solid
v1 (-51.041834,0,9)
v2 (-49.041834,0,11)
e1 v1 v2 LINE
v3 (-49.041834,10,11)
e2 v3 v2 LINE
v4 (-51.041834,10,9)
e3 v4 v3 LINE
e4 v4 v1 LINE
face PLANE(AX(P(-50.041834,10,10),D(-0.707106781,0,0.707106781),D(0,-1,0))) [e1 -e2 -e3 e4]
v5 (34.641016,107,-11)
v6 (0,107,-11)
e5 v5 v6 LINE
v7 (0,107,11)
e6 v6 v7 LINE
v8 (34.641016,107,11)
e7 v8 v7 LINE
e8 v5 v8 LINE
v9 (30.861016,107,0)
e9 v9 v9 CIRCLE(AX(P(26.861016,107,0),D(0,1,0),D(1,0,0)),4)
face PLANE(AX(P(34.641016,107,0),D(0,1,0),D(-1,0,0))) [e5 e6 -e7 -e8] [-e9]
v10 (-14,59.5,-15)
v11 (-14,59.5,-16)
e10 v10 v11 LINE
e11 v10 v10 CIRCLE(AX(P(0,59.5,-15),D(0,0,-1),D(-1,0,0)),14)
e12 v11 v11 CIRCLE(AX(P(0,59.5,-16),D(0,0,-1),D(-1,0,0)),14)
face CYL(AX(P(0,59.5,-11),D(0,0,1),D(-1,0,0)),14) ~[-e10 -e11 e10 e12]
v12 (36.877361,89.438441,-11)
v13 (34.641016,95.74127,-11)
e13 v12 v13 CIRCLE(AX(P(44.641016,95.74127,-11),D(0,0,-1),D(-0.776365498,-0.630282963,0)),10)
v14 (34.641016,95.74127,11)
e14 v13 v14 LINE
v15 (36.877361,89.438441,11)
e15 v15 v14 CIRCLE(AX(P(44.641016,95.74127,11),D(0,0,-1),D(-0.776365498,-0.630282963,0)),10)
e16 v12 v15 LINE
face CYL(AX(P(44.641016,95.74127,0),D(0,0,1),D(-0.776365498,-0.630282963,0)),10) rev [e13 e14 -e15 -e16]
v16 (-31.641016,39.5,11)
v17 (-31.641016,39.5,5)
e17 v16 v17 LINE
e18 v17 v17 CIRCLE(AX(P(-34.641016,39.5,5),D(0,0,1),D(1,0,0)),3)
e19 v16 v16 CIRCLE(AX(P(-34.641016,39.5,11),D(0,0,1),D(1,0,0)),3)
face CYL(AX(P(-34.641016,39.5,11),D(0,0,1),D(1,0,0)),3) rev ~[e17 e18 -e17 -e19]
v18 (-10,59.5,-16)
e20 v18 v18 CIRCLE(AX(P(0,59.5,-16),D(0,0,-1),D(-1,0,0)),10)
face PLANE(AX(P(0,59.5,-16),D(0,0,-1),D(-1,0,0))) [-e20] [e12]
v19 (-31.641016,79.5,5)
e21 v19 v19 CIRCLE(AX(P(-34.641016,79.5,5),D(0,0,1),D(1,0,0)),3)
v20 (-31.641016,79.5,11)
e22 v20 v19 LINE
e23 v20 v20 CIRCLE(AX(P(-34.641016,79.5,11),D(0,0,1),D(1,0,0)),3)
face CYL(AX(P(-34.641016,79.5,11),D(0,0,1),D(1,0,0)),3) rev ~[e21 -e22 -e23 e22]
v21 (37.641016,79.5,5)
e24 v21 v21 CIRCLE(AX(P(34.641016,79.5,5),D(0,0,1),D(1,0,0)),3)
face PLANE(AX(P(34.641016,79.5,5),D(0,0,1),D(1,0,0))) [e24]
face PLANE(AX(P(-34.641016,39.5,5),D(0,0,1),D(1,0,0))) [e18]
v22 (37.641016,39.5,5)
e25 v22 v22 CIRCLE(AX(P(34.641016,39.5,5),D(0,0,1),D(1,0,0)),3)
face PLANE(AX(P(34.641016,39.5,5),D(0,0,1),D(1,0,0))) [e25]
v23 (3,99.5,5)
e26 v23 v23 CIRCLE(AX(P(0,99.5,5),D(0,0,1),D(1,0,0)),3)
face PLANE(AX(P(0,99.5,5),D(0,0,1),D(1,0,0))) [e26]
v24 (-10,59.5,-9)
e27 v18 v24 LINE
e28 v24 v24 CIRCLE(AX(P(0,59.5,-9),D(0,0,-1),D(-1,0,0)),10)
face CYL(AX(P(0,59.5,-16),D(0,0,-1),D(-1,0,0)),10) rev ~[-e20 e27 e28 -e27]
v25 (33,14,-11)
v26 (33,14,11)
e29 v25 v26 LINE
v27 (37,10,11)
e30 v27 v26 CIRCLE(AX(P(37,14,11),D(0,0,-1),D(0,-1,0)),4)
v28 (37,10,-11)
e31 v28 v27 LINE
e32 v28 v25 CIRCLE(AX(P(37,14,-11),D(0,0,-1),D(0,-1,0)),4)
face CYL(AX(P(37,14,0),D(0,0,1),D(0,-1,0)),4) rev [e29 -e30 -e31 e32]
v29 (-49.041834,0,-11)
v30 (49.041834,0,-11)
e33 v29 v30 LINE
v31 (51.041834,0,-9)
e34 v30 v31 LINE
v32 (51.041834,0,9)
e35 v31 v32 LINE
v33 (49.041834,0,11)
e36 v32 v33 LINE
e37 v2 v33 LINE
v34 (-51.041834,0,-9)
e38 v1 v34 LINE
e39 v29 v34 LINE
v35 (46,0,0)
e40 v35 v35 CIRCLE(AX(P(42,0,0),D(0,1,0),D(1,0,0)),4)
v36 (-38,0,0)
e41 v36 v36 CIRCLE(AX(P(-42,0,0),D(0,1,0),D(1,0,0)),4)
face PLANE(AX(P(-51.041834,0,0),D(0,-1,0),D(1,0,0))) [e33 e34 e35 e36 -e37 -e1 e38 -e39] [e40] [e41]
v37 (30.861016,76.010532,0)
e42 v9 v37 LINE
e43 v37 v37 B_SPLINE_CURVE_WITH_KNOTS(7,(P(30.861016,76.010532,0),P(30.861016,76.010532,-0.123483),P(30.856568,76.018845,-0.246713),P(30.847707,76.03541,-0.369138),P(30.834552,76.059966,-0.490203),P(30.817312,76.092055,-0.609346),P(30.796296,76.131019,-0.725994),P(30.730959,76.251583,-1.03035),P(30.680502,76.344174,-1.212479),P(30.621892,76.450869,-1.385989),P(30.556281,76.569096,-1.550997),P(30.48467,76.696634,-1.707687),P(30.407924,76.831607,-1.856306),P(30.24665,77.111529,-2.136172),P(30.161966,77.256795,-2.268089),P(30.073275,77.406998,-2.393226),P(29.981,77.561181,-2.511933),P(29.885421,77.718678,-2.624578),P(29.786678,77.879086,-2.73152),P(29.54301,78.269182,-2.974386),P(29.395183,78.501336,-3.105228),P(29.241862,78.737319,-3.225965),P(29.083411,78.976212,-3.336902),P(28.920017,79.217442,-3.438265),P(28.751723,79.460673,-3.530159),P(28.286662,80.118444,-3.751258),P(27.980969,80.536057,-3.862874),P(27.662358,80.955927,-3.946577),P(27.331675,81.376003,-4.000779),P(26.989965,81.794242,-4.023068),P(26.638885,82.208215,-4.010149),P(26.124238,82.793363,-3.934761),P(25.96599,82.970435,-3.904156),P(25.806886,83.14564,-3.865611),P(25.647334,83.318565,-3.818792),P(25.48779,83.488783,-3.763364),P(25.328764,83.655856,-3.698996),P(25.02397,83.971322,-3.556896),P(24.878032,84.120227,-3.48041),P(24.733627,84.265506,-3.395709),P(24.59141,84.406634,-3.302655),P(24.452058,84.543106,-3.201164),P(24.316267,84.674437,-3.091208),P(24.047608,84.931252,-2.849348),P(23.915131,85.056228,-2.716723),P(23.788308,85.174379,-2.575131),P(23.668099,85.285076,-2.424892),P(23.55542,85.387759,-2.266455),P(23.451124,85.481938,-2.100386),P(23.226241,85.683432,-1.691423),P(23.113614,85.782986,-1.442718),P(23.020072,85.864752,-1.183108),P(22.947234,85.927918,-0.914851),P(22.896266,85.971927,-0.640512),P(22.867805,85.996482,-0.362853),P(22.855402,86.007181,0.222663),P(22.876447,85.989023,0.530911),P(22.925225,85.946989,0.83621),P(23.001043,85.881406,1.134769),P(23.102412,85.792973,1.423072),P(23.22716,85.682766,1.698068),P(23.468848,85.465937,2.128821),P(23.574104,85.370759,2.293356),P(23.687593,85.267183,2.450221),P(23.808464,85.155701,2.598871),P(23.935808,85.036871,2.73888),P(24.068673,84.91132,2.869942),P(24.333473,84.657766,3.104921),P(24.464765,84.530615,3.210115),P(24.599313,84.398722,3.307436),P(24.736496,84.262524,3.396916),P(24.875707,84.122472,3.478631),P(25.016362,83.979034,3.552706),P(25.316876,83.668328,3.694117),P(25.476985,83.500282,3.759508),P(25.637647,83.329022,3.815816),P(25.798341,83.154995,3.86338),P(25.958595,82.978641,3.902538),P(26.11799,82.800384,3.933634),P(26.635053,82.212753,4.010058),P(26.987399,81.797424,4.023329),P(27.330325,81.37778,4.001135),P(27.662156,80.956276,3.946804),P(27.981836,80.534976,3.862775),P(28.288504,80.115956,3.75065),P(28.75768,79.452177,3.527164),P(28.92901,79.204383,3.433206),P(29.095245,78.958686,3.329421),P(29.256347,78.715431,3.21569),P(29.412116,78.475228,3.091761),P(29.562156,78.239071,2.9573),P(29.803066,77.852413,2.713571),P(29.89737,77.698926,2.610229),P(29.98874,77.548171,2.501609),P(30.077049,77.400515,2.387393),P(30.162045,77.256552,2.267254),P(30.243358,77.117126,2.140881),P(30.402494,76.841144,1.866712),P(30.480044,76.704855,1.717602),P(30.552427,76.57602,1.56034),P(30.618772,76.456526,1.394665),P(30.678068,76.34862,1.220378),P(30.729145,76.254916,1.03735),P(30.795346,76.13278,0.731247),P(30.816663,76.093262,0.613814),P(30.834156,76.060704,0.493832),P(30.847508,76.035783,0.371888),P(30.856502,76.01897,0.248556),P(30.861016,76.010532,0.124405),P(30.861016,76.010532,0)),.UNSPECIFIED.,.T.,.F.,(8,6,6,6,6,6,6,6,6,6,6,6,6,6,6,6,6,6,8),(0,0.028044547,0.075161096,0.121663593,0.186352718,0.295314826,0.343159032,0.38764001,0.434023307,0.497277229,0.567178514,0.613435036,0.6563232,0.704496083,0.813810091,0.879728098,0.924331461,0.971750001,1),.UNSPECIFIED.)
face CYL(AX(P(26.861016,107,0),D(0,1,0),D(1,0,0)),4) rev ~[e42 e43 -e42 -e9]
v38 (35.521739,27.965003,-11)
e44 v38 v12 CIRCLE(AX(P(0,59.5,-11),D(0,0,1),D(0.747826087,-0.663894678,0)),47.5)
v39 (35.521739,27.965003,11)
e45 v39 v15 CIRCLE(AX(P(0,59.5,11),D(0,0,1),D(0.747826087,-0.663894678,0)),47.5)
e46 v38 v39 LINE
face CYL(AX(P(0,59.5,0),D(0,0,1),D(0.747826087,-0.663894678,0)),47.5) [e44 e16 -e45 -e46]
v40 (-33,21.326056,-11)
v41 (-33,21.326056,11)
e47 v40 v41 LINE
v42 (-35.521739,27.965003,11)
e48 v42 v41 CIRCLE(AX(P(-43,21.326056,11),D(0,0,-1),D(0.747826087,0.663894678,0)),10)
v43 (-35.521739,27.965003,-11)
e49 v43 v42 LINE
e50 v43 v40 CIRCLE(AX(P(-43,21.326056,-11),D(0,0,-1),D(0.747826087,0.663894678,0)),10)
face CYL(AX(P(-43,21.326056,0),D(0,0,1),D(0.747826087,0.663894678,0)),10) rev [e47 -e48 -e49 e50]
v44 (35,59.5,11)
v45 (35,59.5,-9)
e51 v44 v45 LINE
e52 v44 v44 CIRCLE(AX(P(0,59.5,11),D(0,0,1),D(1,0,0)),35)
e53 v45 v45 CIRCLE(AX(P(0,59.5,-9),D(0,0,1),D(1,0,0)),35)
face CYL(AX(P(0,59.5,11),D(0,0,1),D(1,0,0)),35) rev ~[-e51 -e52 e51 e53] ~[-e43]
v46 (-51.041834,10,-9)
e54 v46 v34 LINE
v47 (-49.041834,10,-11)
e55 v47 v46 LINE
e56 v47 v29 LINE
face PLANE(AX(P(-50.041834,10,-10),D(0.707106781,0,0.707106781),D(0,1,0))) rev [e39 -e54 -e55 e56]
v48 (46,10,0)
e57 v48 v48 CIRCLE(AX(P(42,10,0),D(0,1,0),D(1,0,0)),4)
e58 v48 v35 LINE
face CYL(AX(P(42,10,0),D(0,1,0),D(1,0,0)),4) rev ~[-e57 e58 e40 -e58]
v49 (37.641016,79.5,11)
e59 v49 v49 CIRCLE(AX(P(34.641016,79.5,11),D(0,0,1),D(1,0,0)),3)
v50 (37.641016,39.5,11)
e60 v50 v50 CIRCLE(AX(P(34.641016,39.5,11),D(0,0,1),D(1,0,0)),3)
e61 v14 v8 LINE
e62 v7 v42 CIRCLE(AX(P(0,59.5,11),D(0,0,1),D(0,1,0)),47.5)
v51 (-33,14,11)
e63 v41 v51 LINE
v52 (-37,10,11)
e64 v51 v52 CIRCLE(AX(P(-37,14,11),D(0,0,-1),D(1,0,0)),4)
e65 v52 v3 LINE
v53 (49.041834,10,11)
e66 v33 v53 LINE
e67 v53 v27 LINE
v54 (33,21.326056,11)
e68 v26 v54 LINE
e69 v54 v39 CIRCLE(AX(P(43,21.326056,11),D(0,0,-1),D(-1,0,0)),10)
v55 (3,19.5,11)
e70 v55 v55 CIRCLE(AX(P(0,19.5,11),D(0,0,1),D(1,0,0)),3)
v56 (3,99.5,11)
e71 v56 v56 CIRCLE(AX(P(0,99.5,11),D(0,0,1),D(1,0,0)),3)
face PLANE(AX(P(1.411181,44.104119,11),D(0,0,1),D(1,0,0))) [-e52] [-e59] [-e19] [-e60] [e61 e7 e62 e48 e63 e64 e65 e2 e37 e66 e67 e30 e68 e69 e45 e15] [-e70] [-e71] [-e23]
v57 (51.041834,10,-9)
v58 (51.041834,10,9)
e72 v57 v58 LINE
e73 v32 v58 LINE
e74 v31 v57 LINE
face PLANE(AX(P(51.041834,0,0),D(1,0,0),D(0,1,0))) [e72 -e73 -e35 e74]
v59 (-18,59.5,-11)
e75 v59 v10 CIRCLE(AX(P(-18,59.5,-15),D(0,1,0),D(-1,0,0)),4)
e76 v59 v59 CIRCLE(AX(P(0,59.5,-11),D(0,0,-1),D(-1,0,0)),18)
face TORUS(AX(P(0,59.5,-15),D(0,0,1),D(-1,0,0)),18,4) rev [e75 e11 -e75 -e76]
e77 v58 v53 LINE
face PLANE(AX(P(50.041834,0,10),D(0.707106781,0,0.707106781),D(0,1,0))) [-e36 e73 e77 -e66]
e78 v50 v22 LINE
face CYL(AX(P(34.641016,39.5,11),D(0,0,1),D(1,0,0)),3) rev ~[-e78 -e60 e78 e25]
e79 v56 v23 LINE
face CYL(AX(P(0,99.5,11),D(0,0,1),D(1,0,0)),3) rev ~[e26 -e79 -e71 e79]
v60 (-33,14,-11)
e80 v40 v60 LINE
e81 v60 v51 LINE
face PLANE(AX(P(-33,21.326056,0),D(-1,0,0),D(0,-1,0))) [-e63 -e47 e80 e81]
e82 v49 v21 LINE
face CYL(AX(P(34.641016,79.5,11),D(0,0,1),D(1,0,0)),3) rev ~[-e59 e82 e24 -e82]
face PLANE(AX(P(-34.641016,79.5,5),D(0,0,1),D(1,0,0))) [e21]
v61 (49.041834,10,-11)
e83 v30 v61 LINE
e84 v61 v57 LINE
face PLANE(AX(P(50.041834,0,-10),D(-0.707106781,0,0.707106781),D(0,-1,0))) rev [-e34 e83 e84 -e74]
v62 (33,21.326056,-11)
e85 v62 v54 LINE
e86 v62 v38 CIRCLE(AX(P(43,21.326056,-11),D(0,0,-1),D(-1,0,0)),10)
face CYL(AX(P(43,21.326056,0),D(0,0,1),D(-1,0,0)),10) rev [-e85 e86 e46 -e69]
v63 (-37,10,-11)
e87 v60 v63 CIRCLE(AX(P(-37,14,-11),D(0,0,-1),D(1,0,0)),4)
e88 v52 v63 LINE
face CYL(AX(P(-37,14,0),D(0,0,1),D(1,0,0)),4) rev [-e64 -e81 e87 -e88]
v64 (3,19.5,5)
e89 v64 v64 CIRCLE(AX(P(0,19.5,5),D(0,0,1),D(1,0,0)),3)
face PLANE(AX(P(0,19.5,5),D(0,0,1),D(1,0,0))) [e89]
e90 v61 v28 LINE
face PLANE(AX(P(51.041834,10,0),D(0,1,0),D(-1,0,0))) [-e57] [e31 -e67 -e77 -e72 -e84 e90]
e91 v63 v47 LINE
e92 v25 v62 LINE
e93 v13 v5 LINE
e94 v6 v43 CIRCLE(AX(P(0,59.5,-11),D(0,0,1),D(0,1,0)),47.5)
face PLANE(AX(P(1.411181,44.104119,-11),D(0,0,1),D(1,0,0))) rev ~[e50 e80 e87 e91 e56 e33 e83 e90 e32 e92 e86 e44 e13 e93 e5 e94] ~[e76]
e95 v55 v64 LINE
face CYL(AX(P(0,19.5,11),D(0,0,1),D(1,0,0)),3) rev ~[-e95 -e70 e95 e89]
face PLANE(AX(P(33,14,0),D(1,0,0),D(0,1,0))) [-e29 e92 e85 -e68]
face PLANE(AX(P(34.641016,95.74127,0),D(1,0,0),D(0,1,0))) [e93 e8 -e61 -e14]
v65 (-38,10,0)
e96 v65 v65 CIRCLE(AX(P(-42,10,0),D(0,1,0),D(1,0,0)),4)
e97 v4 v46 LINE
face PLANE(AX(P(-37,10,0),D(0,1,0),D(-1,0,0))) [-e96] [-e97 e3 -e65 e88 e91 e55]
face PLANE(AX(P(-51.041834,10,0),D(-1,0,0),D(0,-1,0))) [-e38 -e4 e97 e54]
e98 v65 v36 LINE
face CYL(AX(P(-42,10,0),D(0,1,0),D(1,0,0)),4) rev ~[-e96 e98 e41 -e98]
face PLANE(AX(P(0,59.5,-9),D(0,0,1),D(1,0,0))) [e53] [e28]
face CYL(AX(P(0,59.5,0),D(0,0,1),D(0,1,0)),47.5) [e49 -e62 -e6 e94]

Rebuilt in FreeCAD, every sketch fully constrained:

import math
import FreeCAD as App
import Part
import Sketcher
from FreeCAD import Vector
Q = App.Units.Quantity


def edges_at(feature, points):
    """Names of the edges that pass closest to the given points."""
    edges = feature.Shape.Edges
    near = lambda p: min(range(len(edges)), key=lambda i: edges[i].distToShape(Part.Vertex(*p))[0])
    return sorted({f"Edge{near(p) + 1}" for p in points})

doc = App.newDocument("Part")
body = doc.addObject("PartDesign::Body", "Body")

# Sketch on XY plane
sketch1 = body.newObject("Sketcher::SketchObject", "Sketch")
sketch1.AttachmentSupport = (doc.getObject("XY_Plane"), [""])
sketch1.MapMode = "FlatFace"
sketch1.addGeometry([
    Part.LineSegment(Vector(-51, 0, 0), Vector(51, 0, 0)),  # 0
    Part.LineSegment(Vector(51, 0, 0), Vector(51, 10, 0)),  # 1
    Part.LineSegment(Vector(51, 10, 0), Vector(37, 10, 0)),  # 2
    Part.ArcOfCircle(Part.Circle(Vector(37, 14, 0), Vector(0, 0, 1), 4), math.radians(180), math.radians(270)),  # 3
    Part.LineSegment(Vector(33, 14, 0), Vector(33, 21.3, 0)),  # 4
    Part.ArcOfCircle(Part.Circle(Vector(43, 21.3, 0), Vector(0, 0, 1), 10), math.radians(138), math.radians(180)),  # 5
    Part.ArcOfCircle(Part.Circle(Vector(0, 59.5, 0), Vector(0, 0, 1), 47.5), math.radians(-42), math.radians(39)),  # 6
    Part.ArcOfCircle(Part.Circle(Vector(44.6, 95.7, 0), Vector(0, 0, 1), 10), math.radians(180), math.radians(219)),  # 7
    Part.LineSegment(Vector(34.6, 95.7, 0), Vector(34.6, 107, 0)),  # 8
    Part.LineSegment(Vector(34.6, 107, 0), Vector(0, 107, 0)),  # 9
    Part.ArcOfCircle(Part.Circle(Vector(0, 59.5, 0), Vector(0, 0, 1), 47.5), math.radians(90), math.radians(222)),  # 10
    Part.ArcOfCircle(Part.Circle(Vector(-43, 21.3, 0), Vector(0, 0, 1), 10), math.radians(0), math.radians(42)),  # 11
    Part.LineSegment(Vector(-33, 21.3, 0), Vector(-33, 14, 0)),  # 12
    Part.ArcOfCircle(Part.Circle(Vector(-37, 14, 0), Vector(0, 0, 1), 4), math.radians(-90), math.radians(0)),  # 13
    Part.LineSegment(Vector(-37, 10, 0), Vector(-51, 10, 0)),  # 14
    Part.LineSegment(Vector(-51, 10, 0), Vector(-51, 0, 0)),  # 15
], False)
sketch1.addConstraint([
    Sketcher.Constraint("Coincident", 0, 2, 1, 1),
    Sketcher.Constraint("Coincident", 1, 2, 2, 1),
    Sketcher.Constraint("Tangent", 2, 2, 3, 2),
    Sketcher.Constraint("Tangent", 3, 1, 4, 1),
    Sketcher.Constraint("Tangent", 4, 2, 5, 2),
    Sketcher.Constraint("Tangent", 5, 1, 6, 1),
    Sketcher.Constraint("Tangent", 6, 2, 7, 2),
    Sketcher.Constraint("Tangent", 7, 1, 8, 1),
    Sketcher.Constraint("Coincident", 8, 2, 9, 1),
    Sketcher.Constraint("Tangent", 9, 2, 10, 1),
    Sketcher.Constraint("Tangent", 10, 2, 11, 2),
    Sketcher.Constraint("Tangent", 11, 1, 12, 1),
    Sketcher.Constraint("Tangent", 12, 2, 13, 2),
    Sketcher.Constraint("Tangent", 13, 1, 14, 1),
    Sketcher.Constraint("Coincident", 14, 2, 15, 1),
    Sketcher.Constraint("Coincident", 15, 2, 0, 1),
    Sketcher.Constraint("Horizontal", 0),
    Sketcher.Constraint("Vertical", 1),
    Sketcher.Constraint("Horizontal", 2),
    Sketcher.Constraint("Vertical", 4),
    Sketcher.Constraint("Vertical", 8),
    Sketcher.Constraint("Horizontal", 9),
    Sketcher.Constraint("Vertical", 12),
    Sketcher.Constraint("Horizontal", 14),
    Sketcher.Constraint("Vertical", 15),
    Sketcher.Constraint("Coincident", 10, 3, 6, 3),
    Sketcher.Constraint("Equal", 5, 7),
    Sketcher.Constraint("Equal", 6, 10),
    Sketcher.Constraint("Equal", 7, 11),
    Sketcher.Constraint("Equal", 3, 13),
    Sketcher.Constraint("Symmetric", 0, 2, 15, 2, -1, 1),
    Sketcher.Constraint("Symmetric", 5, 3, 11, 3, -2),
    Sketcher.Constraint("Horizontal", 3, 3, 13, 3),
    Sketcher.Constraint("Radius", 3, Q("4 mm")),
    Sketcher.Constraint("Radius", 5, Q("10 mm")),
    Sketcher.Constraint("Radius", 6, Q("47.5 mm")),
    Sketcher.Constraint("DistanceY", 1, 1, 1, 2, Q("10 mm")),
    Sketcher.Constraint("DistanceX", -1, 1, 3, 3, Q("37 mm")),
    Sketcher.Constraint("DistanceY", -1, 1, 8, 2, Q("107 mm")),
    Sketcher.Constraint("DistanceX", 0, 1, 0, 2, Q("102.083668 mm")),
    Sketcher.Constraint("DistanceY", 8, 1, 8, 2, Q("11.25873 mm")),
])
pad1 = body.newObject("PartDesign::Pad", "Pad")
pad1.Profile = sketch1
pad1.Length = 22
pad1.Midplane = True

# Sketch on XY plane
sketch2 = body.newObject("Sketcher::SketchObject", "Sketch001")
sketch2.AttachmentSupport = (doc.getObject("XY_Plane"), [""])
sketch2.MapMode = "FlatFace"
sketch2.AttachmentOffset = App.Placement(Vector(0, 0, 11), App.Rotation())
sketch2.addGeometry(Part.Circle(Vector(0, 60, 0), Vector(0, 0, 1), 35), False)
sketch2.addConstraint([
    Sketcher.Constraint("PointOnObject", 0, 3, -2),
    Sketcher.Constraint("Diameter", 0, Q("70 mm")),
    Sketcher.Constraint("DistanceY", -1, 1, 0, 3, Q("59.5 mm")),
])
pocket1 = body.newObject("PartDesign::Pocket", "Pocket")
pocket1.Profile = sketch2
pocket1.Length = 20

# Sketch on XY plane
sketch3 = body.newObject("Sketcher::SketchObject", "Sketch002")
sketch3.AttachmentSupport = (doc.getObject("XY_Plane"), [""])
sketch3.MapMode = "FlatFace"
sketch3.AttachmentOffset = App.Placement(Vector(0, 0, -11), App.Rotation())
sketch3.addGeometry(Part.Circle(Vector(0, 60, 0), Vector(0, 0, 1), 14), False)
sketch3.addConstraint([
    Sketcher.Constraint("PointOnObject", 0, 3, -2),
    Sketcher.Constraint("Diameter", 0, Q("28 mm")),
    Sketcher.Constraint("DistanceY", -1, 1, 0, 3, Q("59.5 mm")),
])
pad2 = body.newObject("PartDesign::Pad", "Pad001")
pad2.Profile = sketch3
pad2.Length = 5
pad2.Reversed = True

# Sketch on XY plane
sketch4 = body.newObject("Sketcher::SketchObject", "Sketch003")
sketch4.AttachmentSupport = (doc.getObject("XY_Plane"), [""])
sketch4.MapMode = "FlatFace"
sketch4.AttachmentOffset = App.Placement(Vector(0, 0, -16), App.Rotation())
sketch4.addGeometry(Part.Circle(Vector(0, 60, 0), Vector(0, 0, 1), 10), False)
sketch4.addConstraint([
    Sketcher.Constraint("PointOnObject", 0, 3, -2),
    Sketcher.Constraint("Diameter", 0, Q("20 mm")),
    Sketcher.Constraint("DistanceY", -1, 1, 0, 3, Q("59.5 mm")),
])
pocket2 = body.newObject("PartDesign::Pocket", "Pocket001")
pocket2.Profile = sketch4
pocket2.Length = 55
pocket2.Reversed = True
doc.recompute()

fillet = body.newObject("PartDesign::Fillet", "Fillet")
fillet.Base = (pocket2, edges_at(pocket2, [(14, 59.5, -11)]))
fillet.Radius = 4
doc.recompute()

chamfer = body.newObject("PartDesign::Chamfer", "Chamfer")
chamfer.Base = (fillet, edges_at(fillet, [
    (-51.042, 5, -11),
    (51.042, 5, -11),
    (51.042, 5, 11),
    (-51.042, 5, 11),
]))
chamfer.Size = 2

# Sketch on XZ plane
sketch5 = body.newObject("Sketcher::SketchObject", "Sketch004")
sketch5.AttachmentSupport = (doc.getObject("XZ_Plane"), [""])
sketch5.MapMode = "FlatFace"
sketch5.AttachmentOffset = App.Placement(Vector(0, 0, -10), App.Rotation())
sketch5.addGeometry([
    Part.Circle(Vector(-42, 0, 0), Vector(0, 0, 1), 4),
    Part.Circle(Vector(42, 0, 0), Vector(0, 0, 1), 4),
], False)
sketch5.addConstraint([
    Sketcher.Constraint("Equal", 0, 1),
    Sketcher.Constraint("Symmetric", 0, 3, 1, 3, -1, 1),
    Sketcher.Constraint("PointOnObject", 0, 3, -1),
    Sketcher.Constraint("Diameter", 0, Q("8 mm")),
    Sketcher.Constraint("DistanceX", 0, 3, -1, 1, Q("42 mm")),
])
pocket3 = body.newObject("PartDesign::Pocket", "Pocket002")
pocket3.Profile = sketch5
pocket3.Length = 10
pocket3.Reversed = True

# Sketch on XZ plane
sketch6 = body.newObject("Sketcher::SketchObject", "Sketch005")
sketch6.AttachmentSupport = (doc.getObject("XZ_Plane"), [""])
sketch6.MapMode = "FlatFace"
sketch6.AttachmentOffset = App.Placement(Vector(0, 0, -107), App.Rotation())
sketch6.addGeometry(Part.Circle(Vector(26.9, 0, 0), Vector(0, 0, 1), 4), False)
sketch6.addConstraint([
    Sketcher.Constraint("PointOnObject", 0, 3, -1),
    Sketcher.Constraint("Diameter", 0, Q("8 mm")),
    Sketcher.Constraint("DistanceX", -1, 1, 0, 3, Q("26.861016 mm")),
])
pocket4 = body.newObject("PartDesign::Pocket", "Pocket003")
pocket4.Profile = sketch6
pocket4.Length = 31
pocket4.Reversed = True

# Sketch on XY plane
sketch7 = body.newObject("Sketcher::SketchObject", "Sketch006")
sketch7.AttachmentSupport = (doc.getObject("XY_Plane"), [""])
sketch7.MapMode = "FlatFace"
sketch7.AttachmentOffset = App.Placement(Vector(0, 0, 11), App.Rotation())
sketch7.addGeometry([
    Part.Circle(Vector(0, 99.5, 0), Vector(0, 0, 1), 3),  # 0
    Part.Circle(Vector(34.6, 79.5, 0), Vector(0, 0, 1), 3),  # 1
    Part.Circle(Vector(34.6, 39.5, 0), Vector(0, 0, 1), 3),  # 2
    Part.Circle(Vector(0, 19.5, 0), Vector(0, 0, 1), 3),  # 3
    Part.Circle(Vector(-34.6, 39.5, 0), Vector(0, 0, 1), 3),  # 4
    Part.Circle(Vector(-34.6, 79.5, 0), Vector(0, 0, 1), 3),  # 5
], False)
sketch7.addConstraint([
    Sketcher.Constraint("Equal", 0, 1),
    Sketcher.Constraint("Equal", 1, 2),
    Sketcher.Constraint("Equal", 2, 3),
    Sketcher.Constraint("Equal", 3, 4),
    Sketcher.Constraint("Equal", 4, 5),
    Sketcher.Constraint("Symmetric", 2, 3, 4, 3, -2),
    Sketcher.Constraint("Symmetric", 1, 3, 5, 3, -2),
    Sketcher.Constraint("PointOnObject", 0, 3, -2),
    Sketcher.Constraint("PointOnObject", 3, 3, -2),
    Sketcher.Constraint("Vertical", 1, 3, 2, 3),
    Sketcher.Constraint("Diameter", 0, Q("6 mm")),
    Sketcher.Constraint("DistanceY", 1, 3, 0, 3, Q("20 mm")),
    Sketcher.Constraint("DistanceY", 2, 3, 1, 3, Q("40 mm")),
    Sketcher.Constraint("DistanceY", 3, 3, 2, 3, Q("20 mm")),
    Sketcher.Constraint("DistanceY", -1, 1, 0, 3, Q("99.5 mm")),
    Sketcher.Constraint("DistanceX", -1, 1, 1, 3, Q("34.641016 mm")),
])
pocket5 = body.newObject("PartDesign::Pocket", "Pocket004")
pocket5.Profile = sketch7
pocket5.Length = 6

doc.recompute()
